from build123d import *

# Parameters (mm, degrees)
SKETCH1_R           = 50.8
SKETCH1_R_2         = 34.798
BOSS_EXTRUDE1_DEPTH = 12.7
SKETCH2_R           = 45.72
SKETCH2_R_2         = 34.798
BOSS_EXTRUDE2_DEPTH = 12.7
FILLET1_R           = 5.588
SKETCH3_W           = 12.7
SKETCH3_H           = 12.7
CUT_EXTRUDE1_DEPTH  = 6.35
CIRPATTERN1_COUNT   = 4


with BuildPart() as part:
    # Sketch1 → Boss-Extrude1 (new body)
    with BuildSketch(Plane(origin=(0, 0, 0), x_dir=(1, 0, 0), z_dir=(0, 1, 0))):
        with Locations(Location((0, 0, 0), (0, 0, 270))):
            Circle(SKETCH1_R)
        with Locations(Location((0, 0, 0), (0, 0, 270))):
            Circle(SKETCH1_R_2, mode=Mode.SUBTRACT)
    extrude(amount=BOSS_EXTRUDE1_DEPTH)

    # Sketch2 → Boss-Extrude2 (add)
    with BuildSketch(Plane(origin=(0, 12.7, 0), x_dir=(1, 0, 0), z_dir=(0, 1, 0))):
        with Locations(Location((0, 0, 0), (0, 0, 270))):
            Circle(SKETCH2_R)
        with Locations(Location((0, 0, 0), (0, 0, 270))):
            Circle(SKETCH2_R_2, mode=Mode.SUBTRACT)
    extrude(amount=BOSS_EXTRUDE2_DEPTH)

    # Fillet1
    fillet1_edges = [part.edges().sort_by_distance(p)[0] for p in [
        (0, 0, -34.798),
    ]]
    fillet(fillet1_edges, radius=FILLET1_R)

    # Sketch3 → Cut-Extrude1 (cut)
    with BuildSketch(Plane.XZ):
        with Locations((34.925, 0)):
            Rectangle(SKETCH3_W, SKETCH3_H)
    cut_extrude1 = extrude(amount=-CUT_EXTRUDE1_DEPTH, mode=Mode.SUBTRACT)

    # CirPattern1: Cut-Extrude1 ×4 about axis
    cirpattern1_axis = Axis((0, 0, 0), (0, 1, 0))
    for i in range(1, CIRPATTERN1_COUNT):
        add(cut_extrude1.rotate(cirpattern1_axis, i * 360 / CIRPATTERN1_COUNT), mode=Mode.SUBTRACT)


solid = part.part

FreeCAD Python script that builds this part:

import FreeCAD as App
import Part
import Sketcher
from FreeCAD import Vector
Q = App.Units.Quantity


def edges_at(feature, points):
    """Names of the edges that pass closest to the given points."""
    edges = feature.Shape.Edges
    near = lambda p: min(range(len(edges)), key=lambda i: edges[i].distToShape(Part.Vertex(*p))[0])
    return sorted({f"Edge{near(p) + 1}" for p in points})


def add_polygon(sketch, points):
    """Adds a closed chain of lines whose ends are joined by coincident constraints."""
    first, n = sketch.GeometryCount, len(points)
    for a, b in zip(points, points[1:] + points[:1]):
        sketch.addGeometry(Part.LineSegment(App.Vector(*a, 0), App.Vector(*b, 0)), False)
    for i in range(n):
        sketch.addConstraint(Sketcher.Constraint("Coincident", first + i, 2, first + (i + 1) % n, 1))

doc = App.newDocument("Part")
body = doc.addObject("PartDesign::Body", "Body")

sketch1 = body.newObject("Sketcher::SketchObject", "Sketch")
sketch1.AttachmentSupport = (doc.getObject("XZ_Plane"), [""])
sketch1.MapMode = "FlatFace"
sketch1.addGeometry(Part.Circle(Vector(0, 0, 0), Vector(0, 0, 1), 50.8), False)
sketch1.addGeometry(Part.Circle(Vector(0, 0, 0), Vector(0, 0, 1), 34.798), False)
sketch1.addConstraint(Sketcher.Constraint("Coincident", 0, 3, -1, 1))
sketch1.addConstraint(Sketcher.Constraint("Coincident", 1, 3, -1, 1))
sketch1.addConstraint(Sketcher.Constraint("Diameter", 0, Q("4 in")))
sketch1.addConstraint(Sketcher.Constraint("Diameter", 1, Q("2.74 in")))
pad1 = body.newObject("PartDesign::Pad", "Pad")
pad1.Profile = sketch1
pad1.Length = Q("0.5 in")
pad1.Reversed = True

sketch2 = body.newObject("Sketcher::SketchObject", "Sketch001")
sketch2.AttachmentSupport = (doc.getObject("XZ_Plane"), [""])
sketch2.MapMode = "FlatFace"
sketch2.AttachmentOffset = App.Placement(Vector(0, 0, -0.5 * 25.4), App.Rotation())
sketch2.addGeometry(Part.Circle(Vector(0, 0, 0), Vector(0, 0, 1), 45.72), False)
sketch2.addGeometry(Part.Circle(Vector(0, 0, 0), Vector(0, 0, 1), 34.798), False)
sketch2.addConstraint(Sketcher.Constraint("Coincident", 0, 3, -1, 1))
sketch2.addConstraint(Sketcher.Constraint("Coincident", 1, 3, -1, 1))
sketch2.addConstraint(Sketcher.Constraint("Diameter", 0, Q("3.6 in")))
sketch2.addConstraint(Sketcher.Constraint("Diameter", 1, Q("2.74 in")))
pad2 = body.newObject("PartDesign::Pad", "Pad001")
pad2.Profile = sketch2
pad2.Length = Q("0.5 in")
pad2.Reversed = True
doc.recompute()

fillet = body.newObject("PartDesign::Fillet", "Fillet")
fillet.Base = (pad2, edges_at(pad2, [(0, 0, -34.798)]))
fillet.Radius = Q("0.22 in")

sketch3 = body.newObject("Sketcher::SketchObject", "Sketch002")
sketch3.AttachmentSupport = (doc.getObject("XZ_Plane"), [""])
sketch3.MapMode = "FlatFace"
add_polygon(sketch3, [(28.575, 6.35), (28.575, -6.35), (41.275, -6.35), (41.275, 6.35)])
sketch3.addConstraint(Sketcher.Constraint("Vertical", 0))
sketch3.addConstraint(Sketcher.Constraint("Horizontal", 1))
sketch3.addConstraint(Sketcher.Constraint("Vertical", 2))
sketch3.addConstraint(Sketcher.Constraint("Horizontal", 3))
sketch3.addConstraint(Sketcher.Constraint("Equal", 3, 0))
sketch3.addConstraint(Sketcher.Constraint("DistanceX", 1, 1, 1, 2, Q("0.5 in")))
sketch3.addConstraint(Sketcher.Constraint("DistanceY", 0, 2, -1, 1, Q("0.25 in")))
sketch3.addConstraint(Sketcher.Constraint("DistanceX", -1, 1, 0, 2, Q("1.125 in")))
pocket1 = body.newObject("PartDesign::Pocket", "Pocket")
pocket1.Profile = sketch3
pocket1.Length = Q("0.25 in")
doc.recompute()

polarpattern = body.newObject("PartDesign::PolarPattern", "PolarPattern")
polarpattern.Originals = [pocket1]
polarpattern.Axis = (doc.getObject("Y_Axis"), [""])
polarpattern.Angle = 360
polarpattern.Occurrences = 4
body.Tip = polarpattern

doc.recompute()
